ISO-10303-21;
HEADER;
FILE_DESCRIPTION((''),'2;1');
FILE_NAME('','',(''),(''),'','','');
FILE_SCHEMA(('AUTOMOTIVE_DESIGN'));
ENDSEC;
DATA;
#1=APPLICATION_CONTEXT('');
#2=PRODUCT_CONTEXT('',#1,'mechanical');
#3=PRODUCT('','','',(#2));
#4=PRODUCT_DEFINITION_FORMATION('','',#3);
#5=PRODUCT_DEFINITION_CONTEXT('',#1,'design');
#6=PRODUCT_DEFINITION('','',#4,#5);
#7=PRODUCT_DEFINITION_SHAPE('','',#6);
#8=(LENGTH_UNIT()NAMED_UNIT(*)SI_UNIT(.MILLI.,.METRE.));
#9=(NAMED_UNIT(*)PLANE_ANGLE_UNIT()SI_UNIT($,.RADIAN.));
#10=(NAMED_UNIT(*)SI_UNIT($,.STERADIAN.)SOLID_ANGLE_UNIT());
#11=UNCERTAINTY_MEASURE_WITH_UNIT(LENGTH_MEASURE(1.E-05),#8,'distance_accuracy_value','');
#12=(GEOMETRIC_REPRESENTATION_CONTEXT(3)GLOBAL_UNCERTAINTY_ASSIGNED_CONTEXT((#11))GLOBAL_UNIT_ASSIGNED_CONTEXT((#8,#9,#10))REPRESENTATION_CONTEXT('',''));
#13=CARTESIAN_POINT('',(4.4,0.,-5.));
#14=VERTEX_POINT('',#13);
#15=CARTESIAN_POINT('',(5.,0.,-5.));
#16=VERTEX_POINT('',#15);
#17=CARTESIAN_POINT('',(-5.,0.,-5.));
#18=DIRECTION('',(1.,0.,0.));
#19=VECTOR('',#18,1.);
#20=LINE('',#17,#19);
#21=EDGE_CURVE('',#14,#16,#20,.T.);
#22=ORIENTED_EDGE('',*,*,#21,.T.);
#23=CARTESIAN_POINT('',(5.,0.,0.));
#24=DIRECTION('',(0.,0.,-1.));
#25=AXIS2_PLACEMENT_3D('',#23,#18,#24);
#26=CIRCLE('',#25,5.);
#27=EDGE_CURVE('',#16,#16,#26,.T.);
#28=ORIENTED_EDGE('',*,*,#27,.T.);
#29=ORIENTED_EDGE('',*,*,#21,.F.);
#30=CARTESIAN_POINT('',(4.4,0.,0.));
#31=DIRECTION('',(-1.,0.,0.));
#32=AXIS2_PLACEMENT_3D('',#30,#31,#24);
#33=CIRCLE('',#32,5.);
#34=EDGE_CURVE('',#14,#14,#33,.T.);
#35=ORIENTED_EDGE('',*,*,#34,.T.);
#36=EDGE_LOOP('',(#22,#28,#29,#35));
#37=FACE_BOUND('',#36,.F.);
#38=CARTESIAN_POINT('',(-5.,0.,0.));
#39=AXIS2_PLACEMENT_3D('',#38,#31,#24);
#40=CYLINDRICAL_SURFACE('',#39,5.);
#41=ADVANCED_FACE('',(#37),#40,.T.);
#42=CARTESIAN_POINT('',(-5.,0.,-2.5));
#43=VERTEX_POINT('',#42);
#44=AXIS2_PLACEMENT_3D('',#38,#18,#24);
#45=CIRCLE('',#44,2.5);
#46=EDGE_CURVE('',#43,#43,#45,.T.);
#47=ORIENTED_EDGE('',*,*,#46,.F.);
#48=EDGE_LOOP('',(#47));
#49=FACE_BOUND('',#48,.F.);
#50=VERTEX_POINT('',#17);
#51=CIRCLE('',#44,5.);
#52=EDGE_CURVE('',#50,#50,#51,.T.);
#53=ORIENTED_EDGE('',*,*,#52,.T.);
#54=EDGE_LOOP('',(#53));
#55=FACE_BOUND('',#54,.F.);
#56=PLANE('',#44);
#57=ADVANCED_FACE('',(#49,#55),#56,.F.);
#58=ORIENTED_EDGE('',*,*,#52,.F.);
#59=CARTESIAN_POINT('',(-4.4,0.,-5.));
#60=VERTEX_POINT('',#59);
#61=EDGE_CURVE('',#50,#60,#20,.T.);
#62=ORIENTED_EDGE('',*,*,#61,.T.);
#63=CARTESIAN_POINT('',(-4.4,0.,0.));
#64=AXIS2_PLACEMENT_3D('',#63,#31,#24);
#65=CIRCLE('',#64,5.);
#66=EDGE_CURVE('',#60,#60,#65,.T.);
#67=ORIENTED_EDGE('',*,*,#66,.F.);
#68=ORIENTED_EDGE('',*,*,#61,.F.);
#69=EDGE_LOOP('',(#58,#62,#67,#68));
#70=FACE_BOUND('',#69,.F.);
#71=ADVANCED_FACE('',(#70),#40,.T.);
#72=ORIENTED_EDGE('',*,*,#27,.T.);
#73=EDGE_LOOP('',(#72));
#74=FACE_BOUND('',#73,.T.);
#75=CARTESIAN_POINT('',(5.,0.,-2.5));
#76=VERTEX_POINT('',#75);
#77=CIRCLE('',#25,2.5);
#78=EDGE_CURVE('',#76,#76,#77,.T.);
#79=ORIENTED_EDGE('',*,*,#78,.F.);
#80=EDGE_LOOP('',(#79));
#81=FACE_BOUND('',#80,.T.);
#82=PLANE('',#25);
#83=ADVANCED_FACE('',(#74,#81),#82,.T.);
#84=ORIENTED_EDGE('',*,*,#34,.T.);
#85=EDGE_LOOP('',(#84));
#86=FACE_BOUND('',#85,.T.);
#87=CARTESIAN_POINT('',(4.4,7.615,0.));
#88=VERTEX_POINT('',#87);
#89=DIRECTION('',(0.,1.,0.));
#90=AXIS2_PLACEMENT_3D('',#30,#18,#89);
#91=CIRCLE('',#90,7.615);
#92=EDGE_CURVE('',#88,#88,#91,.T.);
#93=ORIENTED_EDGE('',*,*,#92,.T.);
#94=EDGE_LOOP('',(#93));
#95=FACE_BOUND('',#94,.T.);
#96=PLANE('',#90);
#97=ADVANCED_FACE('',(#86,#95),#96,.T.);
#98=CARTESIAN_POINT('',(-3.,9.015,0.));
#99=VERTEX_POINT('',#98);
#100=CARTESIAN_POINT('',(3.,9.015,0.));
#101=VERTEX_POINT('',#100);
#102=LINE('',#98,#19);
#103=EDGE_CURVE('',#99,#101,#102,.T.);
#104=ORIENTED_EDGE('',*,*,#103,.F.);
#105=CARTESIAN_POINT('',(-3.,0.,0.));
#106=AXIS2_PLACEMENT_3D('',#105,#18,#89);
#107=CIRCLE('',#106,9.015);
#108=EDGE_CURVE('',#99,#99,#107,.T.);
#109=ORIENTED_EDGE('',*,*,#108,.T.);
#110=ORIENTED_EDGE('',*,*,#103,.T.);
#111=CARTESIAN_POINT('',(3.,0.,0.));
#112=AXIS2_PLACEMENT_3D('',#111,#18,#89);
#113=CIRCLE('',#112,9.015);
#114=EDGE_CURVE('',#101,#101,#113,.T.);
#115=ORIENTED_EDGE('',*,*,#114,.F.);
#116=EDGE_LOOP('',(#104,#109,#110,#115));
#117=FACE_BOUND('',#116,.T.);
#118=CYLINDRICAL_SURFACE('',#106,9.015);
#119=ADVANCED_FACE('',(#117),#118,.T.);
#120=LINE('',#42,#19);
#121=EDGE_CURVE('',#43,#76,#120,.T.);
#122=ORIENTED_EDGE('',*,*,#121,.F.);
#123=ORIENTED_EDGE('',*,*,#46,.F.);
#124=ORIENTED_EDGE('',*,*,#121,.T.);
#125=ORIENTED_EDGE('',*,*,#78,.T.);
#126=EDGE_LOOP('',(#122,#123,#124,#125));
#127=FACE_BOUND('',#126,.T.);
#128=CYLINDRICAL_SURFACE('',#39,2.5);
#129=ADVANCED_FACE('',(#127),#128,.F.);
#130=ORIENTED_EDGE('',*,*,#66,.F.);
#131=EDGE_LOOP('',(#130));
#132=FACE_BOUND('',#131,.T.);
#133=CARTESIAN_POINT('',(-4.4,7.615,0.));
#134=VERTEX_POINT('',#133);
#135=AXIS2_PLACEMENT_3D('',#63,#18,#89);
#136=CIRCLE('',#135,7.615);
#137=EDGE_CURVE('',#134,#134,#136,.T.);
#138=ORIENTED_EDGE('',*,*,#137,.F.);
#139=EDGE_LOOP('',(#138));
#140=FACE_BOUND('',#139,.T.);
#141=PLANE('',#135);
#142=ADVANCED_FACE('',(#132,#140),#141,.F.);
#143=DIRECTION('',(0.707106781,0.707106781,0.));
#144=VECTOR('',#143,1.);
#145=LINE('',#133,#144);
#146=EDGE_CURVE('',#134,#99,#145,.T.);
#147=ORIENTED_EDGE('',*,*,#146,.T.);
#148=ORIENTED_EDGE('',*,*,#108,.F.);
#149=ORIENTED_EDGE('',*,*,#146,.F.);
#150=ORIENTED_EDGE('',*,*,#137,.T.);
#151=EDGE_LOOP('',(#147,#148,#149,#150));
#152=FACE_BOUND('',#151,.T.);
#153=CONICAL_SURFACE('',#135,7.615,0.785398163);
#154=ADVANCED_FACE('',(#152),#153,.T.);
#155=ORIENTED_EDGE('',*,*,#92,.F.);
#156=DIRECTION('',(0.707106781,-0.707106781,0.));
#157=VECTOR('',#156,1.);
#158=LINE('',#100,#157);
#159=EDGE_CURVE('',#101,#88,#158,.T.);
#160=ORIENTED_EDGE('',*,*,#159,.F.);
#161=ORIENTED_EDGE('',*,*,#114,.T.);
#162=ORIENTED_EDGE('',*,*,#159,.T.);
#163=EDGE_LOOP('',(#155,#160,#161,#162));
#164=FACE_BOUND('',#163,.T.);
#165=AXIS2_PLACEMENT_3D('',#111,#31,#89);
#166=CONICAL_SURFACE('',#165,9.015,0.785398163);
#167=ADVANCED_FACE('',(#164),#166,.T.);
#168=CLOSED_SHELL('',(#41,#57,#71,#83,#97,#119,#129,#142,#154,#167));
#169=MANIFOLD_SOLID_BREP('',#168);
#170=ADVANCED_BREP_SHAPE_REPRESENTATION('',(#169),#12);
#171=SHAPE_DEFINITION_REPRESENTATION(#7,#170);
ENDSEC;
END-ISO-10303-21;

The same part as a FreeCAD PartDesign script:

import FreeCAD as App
import Part
import Sketcher

V = App.Vector
Q = App.Units.Quantity


def add_polygon(sketch, points):
    """Adds a closed chain of lines whose ends are joined by coincident constraints."""
    first, n = sketch.GeometryCount, len(points)
    for a, b in zip(points, points[1:] + points[:1]):
        sketch.addGeometry(Part.LineSegment(App.Vector(*a, 0), App.Vector(*b, 0)), False)
    for i in range(n):
        sketch.addConstraint(Sketcher.Constraint("Coincident", first + i, 2, first + (i + 1) % n, 1))

doc = App.newDocument("Part")
body = doc.addObject("PartDesign::Body", "Body")

sketch1 = doc.addObject("Sketcher::SketchObject", "Sketch")
body.addObject(sketch1)
sketch1.AttachmentSupport = (doc.YZ_Plane, [""])
sketch1.MapMode = "FlatFace"
sketch1.AttachmentOffset = App.Placement(V(0, 0, -5), App.Rotation())
sketch1.addGeometry(Part.Circle(V(0, 0, 0), V(0, 0, 1), 2.5), False)
sketch1.addConstraint(Sketcher.Constraint("Coincident", 0, 3, -1, 1))
sketch1.addConstraint(Sketcher.Constraint("Diameter", 0, Q("5 mm")))
pad1 = doc.addObject("PartDesign::Pad", "Pad")
body.addObject(pad1)
pad1.Profile = sketch1
pad1.Length = 10
body2 = doc.addObject("PartDesign::Body", "Body001")

sketch2 = doc.addObject("Sketcher::SketchObject", "Sketch001")
body2.addObject(sketch2)
sketch2.AttachmentSupport = (doc.getObject("YZ_Plane001"), [""])
sketch2.MapMode = "FlatFace"
sketch2.AttachmentOffset = App.Placement(V(0, 0, -5), App.Rotation())
sketch2.addGeometry(Part.Circle(V(0, 0, 0), V(0, 0, 1), 5), False)
sketch2.addConstraint(Sketcher.Constraint("Coincident", 0, 3, -1, 1))
sketch2.addConstraint(Sketcher.Constraint("Diameter", 0, Q("10 mm")))
pad2 = doc.addObject("PartDesign::Pad", "Pad001")
body2.addObject(pad2)
pad2.Profile = sketch2
pad2.Length = 10
doc.recompute()

boolean = doc.addObject("PartDesign::Boolean", "Boolean")
body2.addObject(boolean)
boolean.Type = "Cut"
boolean.addObjects([body])
body3 = doc.addObject("PartDesign::Body", "Body002")

sketch3 = doc.addObject("Sketcher::SketchObject", "Sketch002")
body3.addObject(sketch3)
sketch3.AttachmentSupport = (doc.getObject("YZ_Plane002"), [""])
sketch3.MapMode = "FlatFace"
sketch3.AttachmentOffset = App.Placement(V(0, 0, -5), App.Rotation())
sketch3.addGeometry(Part.Circle(V(0, 0, 0), V(0, 0, 1), 2.5), False)
sketch3.addConstraint(Sketcher.Constraint("Coincident", 0, 3, -1, 1))
sketch3.addConstraint(Sketcher.Constraint("Diameter", 0, Q("5 mm")))
pad3 = doc.addObject("PartDesign::Pad", "Pad002")
body3.addObject(pad3)
pad3.Profile = sketch3
pad3.Length = 10
body4 = doc.addObject("PartDesign::Body", "Body003")

sketch4 = doc.addObject("Sketcher::SketchObject", "Sketch003")
body4.addObject(sketch4)
sketch4.AttachmentSupport = (doc.getObject("XY_Plane003"), [""])
sketch4.MapMode = "FlatFace"
add_polygon(sketch4, [(-4.4, 7.615), (-4.4, 0), (4.4, 0), (4.4, 7.615), (3, 9.015), (-3, 9.015)])
sketch4.addConstraint(Sketcher.Constraint("Vertical", 0))
sketch4.addConstraint(Sketcher.Constraint("Horizontal", 1))
sketch4.addConstraint(Sketcher.Constraint("Vertical", 2))
sketch4.addConstraint(Sketcher.Constraint("Horizontal", 4))
sketch4.addConstraint(Sketcher.Constraint("Symmetric", 0, 2, 1, 2, -1, 1))
sketch4.addConstraint(Sketcher.Constraint("Perpendicular", 3, 5))
sketch4.addConstraint(Sketcher.Constraint("Horizontal", 2, 2, 5, 2))
sketch4.addConstraint(Sketcher.Constraint("Equal", 3, 5))
sketch4.addConstraint(Sketcher.Constraint("DistanceX", 4, 2, 4, 1, Q("6 mm")))
sketch4.addConstraint(Sketcher.Constraint("DistanceX", 1, 1, 1, 2, Q("8.8 mm")))
sketch4.addConstraint(Sketcher.Constraint("DistanceY", 0, 2, 0, 1, Q("7.615 mm")))
revolution = doc.addObject("PartDesign::Revolution", "Revolution")
body4.addObject(revolution)
revolution.Profile = sketch4
revolution.ReferenceAxis = (sketch4, ["H_Axis"])
revolution.Angle = 360
doc.recompute()

boolean2 = doc.addObject("PartDesign::Boolean", "Boolean001")
body4.addObject(boolean2)
boolean2.Type = "Cut"
boolean2.addObjects([body3])
doc.recompute()

boolean3 = doc.addObject("PartDesign::Boolean", "Boolean002")
body4.addObject(boolean3)
boolean3.Type = "Fuse"
boolean3.addObjects([body2])

doc.recompute()
